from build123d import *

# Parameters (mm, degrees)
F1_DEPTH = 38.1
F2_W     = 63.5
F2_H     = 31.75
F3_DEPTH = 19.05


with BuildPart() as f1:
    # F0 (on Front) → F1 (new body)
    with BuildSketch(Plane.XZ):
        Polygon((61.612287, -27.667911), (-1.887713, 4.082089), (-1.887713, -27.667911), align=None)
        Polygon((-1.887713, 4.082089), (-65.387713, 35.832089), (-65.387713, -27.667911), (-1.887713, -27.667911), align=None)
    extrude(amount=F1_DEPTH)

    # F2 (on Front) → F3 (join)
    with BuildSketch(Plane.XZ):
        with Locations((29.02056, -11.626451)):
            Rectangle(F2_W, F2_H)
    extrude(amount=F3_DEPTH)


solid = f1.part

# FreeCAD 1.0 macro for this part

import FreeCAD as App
import Part
import Sketcher

V = App.Vector
Q = App.Units.Quantity


def add_polygon(sketch, points):
    """Adds a closed chain of lines whose ends are joined by coincident constraints."""
    first, n = sketch.GeometryCount, len(points)
    for a, b in zip(points, points[1:] + points[:1]):
        sketch.addGeometry(Part.LineSegment(App.Vector(*a, 0), App.Vector(*b, 0)), False)
    for i in range(n):
        sketch.addConstraint(Sketcher.Constraint("Coincident", first + i, 2, first + (i + 1) % n, 1))

doc = App.newDocument("Part")
body = doc.addObject("PartDesign::Body", "Body")

# Sketch on XZ plane
sketch1 = body.newObject("Sketcher::SketchObject", "Sketch")
sketch1.AttachmentSupport = (doc.getObject("XZ_Plane"), [""])
sketch1.MapMode = "FlatFace"
add_polygon(sketch1, [(61.612287, -27.667911), (-65.387713, 35.832089), (-65.387713, -27.667911)])  # lines 0-2
sketch1.addConstraint([
    Sketcher.Constraint("Vertical", 1),
    Sketcher.Constraint("Horizontal", 2),
    Sketcher.Constraint("DistanceX", 2, 1, 2, 2, Q("5 in")),
    Sketcher.Constraint("DistanceY", 1, 2, 1, 1, Q("2.5 in")),
    Sketcher.Constraint("DistanceY", -1, 1, 0, 2, Q("35.832089 mm")),
    Sketcher.Constraint("DistanceX", 0, 2, -1, 1, Q("65.387713 mm")),
])
pad1 = body.newObject("PartDesign::Pad", "Pad")
pad1.Profile = sketch1
pad1.Length = Q("1.5 in")

# Sketch on XZ plane
sketch2 = body.newObject("Sketcher::SketchObject", "Sketch001")
sketch2.AttachmentSupport = (doc.getObject("XZ_Plane"), [""])
sketch2.MapMode = "FlatFace"
add_polygon(sketch2, [(-2.72944, 4.248549), (-2.72944, -27.501451), (60.77056, -27.501451), (60.77056, 4.248549)])  # lines 0-3
sketch2.addConstraint([
    Sketcher.Constraint("Vertical", 0),
    Sketcher.Constraint("Horizontal", 1),
    Sketcher.Constraint("Vertical", 2),
    Sketcher.Constraint("Horizontal", 3),
    Sketcher.Constraint("DistanceX", 1, 1, 1, 2, Q("2.5 in")),
    Sketcher.Constraint("DistanceY", 0, 2, 0, 1, Q("1.25 in")),
    Sketcher.Constraint("DistanceX", 0, 2, -1, 1, Q("2.72944 mm")),
    Sketcher.Constraint("DistanceY", 0, 2, -1, 1, Q("27.501451 mm")),
])
pad2 = body.newObject("PartDesign::Pad", "Pad001")
pad2.Profile = sketch2
pad2.Length = Q("0.75 in")

doc.recompute()
